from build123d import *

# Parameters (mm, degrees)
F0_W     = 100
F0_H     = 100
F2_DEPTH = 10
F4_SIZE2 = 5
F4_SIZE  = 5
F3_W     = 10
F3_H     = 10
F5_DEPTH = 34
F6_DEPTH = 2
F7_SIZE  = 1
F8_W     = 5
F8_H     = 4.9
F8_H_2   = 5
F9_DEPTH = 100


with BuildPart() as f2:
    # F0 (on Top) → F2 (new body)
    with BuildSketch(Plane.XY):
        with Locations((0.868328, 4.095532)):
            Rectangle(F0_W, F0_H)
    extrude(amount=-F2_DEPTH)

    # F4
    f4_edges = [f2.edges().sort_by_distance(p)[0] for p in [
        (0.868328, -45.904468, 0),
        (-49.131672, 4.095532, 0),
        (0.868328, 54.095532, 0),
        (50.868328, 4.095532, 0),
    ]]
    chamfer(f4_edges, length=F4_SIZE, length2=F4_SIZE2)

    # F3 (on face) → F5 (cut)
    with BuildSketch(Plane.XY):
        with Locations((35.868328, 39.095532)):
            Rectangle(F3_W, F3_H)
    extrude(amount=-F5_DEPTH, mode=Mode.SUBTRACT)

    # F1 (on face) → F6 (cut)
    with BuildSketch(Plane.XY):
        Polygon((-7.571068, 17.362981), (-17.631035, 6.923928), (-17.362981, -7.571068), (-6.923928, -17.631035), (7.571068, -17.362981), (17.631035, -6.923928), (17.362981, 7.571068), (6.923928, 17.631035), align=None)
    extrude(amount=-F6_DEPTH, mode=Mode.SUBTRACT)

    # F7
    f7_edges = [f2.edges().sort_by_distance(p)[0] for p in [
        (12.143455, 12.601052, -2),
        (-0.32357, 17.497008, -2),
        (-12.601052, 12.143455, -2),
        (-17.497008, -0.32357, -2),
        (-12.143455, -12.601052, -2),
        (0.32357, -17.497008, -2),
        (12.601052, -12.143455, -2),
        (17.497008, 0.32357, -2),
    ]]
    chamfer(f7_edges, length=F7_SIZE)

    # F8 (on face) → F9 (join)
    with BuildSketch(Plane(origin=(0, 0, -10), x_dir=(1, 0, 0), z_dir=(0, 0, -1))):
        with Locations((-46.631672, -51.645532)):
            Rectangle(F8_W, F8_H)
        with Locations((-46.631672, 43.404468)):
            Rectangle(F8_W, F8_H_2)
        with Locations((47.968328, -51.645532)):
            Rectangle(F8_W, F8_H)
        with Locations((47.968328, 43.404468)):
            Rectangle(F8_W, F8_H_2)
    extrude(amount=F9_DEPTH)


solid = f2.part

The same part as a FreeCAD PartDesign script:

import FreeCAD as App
import Part
import Sketcher

V = App.Vector


def edges_at(feature, points):
    """Names of the edges that pass closest to the given points."""
    edges = feature.Shape.Edges
    near = lambda p: min(range(len(edges)), key=lambda i: edges[i].distToShape(Part.Vertex(*p))[0])
    return sorted({f"Edge{near(p) + 1}" for p in points})

doc = App.newDocument("Part")
body = doc.addObject("PartDesign::Body", "Body")

# Sketch on XY plane
sketch1 = body.newObject("Sketcher::SketchObject", "Sketch")
sketch1.AttachmentSupport = (doc.getObject("XY_Plane"), [""])
sketch1.MapMode = "FlatFace"
sketch1.addGeometry(Part.LineSegment(V(-49, 54, 0), V(-49, -46, 0)), False)
sketch1.addGeometry(Part.LineSegment(V(-49, -46, 0), V(51, -46, 0)), False)
sketch1.addGeometry(Part.LineSegment(V(51, -46, 0), V(51, 54, 0)), False)
sketch1.addGeometry(Part.LineSegment(V(51, 54, 0), V(-49, 54, 0)), False)
sketch1.addConstraint(Sketcher.Constraint("Coincident", 0, 2, 1, 1))
sketch1.addConstraint(Sketcher.Constraint("Coincident", 1, 2, 2, 1))
sketch1.addConstraint(Sketcher.Constraint("Coincident", 2, 2, 3, 1))
sketch1.addConstraint(Sketcher.Constraint("Coincident", 3, 2, 0, 1))
sketch1.addConstraint(Sketcher.Constraint("Vertical", 0))
sketch1.addConstraint(Sketcher.Constraint("Horizontal", 1))
sketch1.addConstraint(Sketcher.Constraint("Vertical", 2))
sketch1.addConstraint(Sketcher.Constraint("Horizontal", 3))
sketch1.addConstraint(Sketcher.Constraint("Equal", 3, 0))
sketch1.addConstraint(Sketcher.Constraint("DistanceX", 1, 1, 1, 2, 100.0))
sketch1.addConstraint(Sketcher.Constraint("DistanceX", 0, 2, -1, 1, 49.131672))
sketch1.addConstraint(Sketcher.Constraint("DistanceY", 0, 2, -1, 1, 45.904468))
pad1 = body.newObject("PartDesign::Pad", "Pad")
pad1.Profile = sketch1
pad1.Length = 10
pad1.Reversed = True
doc.recompute()

chamfer = body.newObject("PartDesign::Chamfer", "Chamfer")
chamfer.Base = (pad1, edges_at(pad1, [
    (0.868, -45.904, 0),
    (-49.132, 4.096, 0),
    (0.868, 54.096, 0),
    (50.868, 4.096, 0),
]))
chamfer.ChamferType = "Two distances"
chamfer.Size = 5
chamfer.Size2 = 5

# Sketch on XY plane
sketch2 = body.newObject("Sketcher::SketchObject", "Sketch001")
sketch2.AttachmentSupport = (doc.getObject("XY_Plane"), [""])
sketch2.MapMode = "FlatFace"
sketch2.addGeometry(Part.LineSegment(V(31, 44, 0), V(31, 34, 0)), False)
sketch2.addGeometry(Part.LineSegment(V(31, 34, 0), V(41, 34, 0)), False)
sketch2.addGeometry(Part.LineSegment(V(41, 34, 0), V(41, 44, 0)), False)
sketch2.addGeometry(Part.LineSegment(V(41, 44, 0), V(31, 44, 0)), False)
sketch2.addConstraint(Sketcher.Constraint("Coincident", 0, 2, 1, 1))
sketch2.addConstraint(Sketcher.Constraint("Coincident", 1, 2, 2, 1))
sketch2.addConstraint(Sketcher.Constraint("Coincident", 2, 2, 3, 1))
sketch2.addConstraint(Sketcher.Constraint("Coincident", 3, 2, 0, 1))
sketch2.addConstraint(Sketcher.Constraint("Vertical", 0))
sketch2.addConstraint(Sketcher.Constraint("Horizontal", 1))
sketch2.addConstraint(Sketcher.Constraint("Vertical", 2))
sketch2.addConstraint(Sketcher.Constraint("Horizontal", 3))
sketch2.addConstraint(Sketcher.Constraint("Equal", 3, 0))
sketch2.addConstraint(Sketcher.Constraint("DistanceX", 1, 1, 1, 2, 10.0))
sketch2.addConstraint(Sketcher.Constraint("DistanceX", -1, 1, 0, 2, 30.868328))
sketch2.addConstraint(Sketcher.Constraint("DistanceY", -1, 1, 0, 2, 34.095532))
pocket1 = body.newObject("PartDesign::Pocket", "Pocket")
pocket1.Profile = sketch2
pocket1.Length = 34

# Sketch on XY plane
sketch3 = body.newObject("Sketcher::SketchObject", "Sketch002")
sketch3.AttachmentSupport = (doc.getObject("XY_Plane"), [""])
sketch3.MapMode = "FlatFace"
sketch3.addGeometry(Part.LineSegment(V(-8, 17, 0), V(-18, 7, 0)), False)
sketch3.addGeometry(Part.LineSegment(V(-18, 7, 0), V(-17, -8, 0)), False)
sketch3.addGeometry(Part.LineSegment(V(-17, -8, 0), V(-7, -18, 0)), False)
sketch3.addGeometry(Part.LineSegment(V(-7, -18, 0), V(8, -17, 0)), False)
sketch3.addGeometry(Part.LineSegment(V(8, -17, 0), V(18, -7, 0)), False)
sketch3.addGeometry(Part.LineSegment(V(18, -7, 0), V(17, 8, 0)), False)
sketch3.addGeometry(Part.LineSegment(V(17, 8, 0), V(7, 18, 0)), False)
sketch3.addGeometry(Part.LineSegment(V(7, 18, 0), V(-8, 17, 0)), False)
sketch3.addConstraint(Sketcher.Constraint("Coincident", 0, 2, 1, 1))
sketch3.addConstraint(Sketcher.Constraint("Coincident", 1, 2, 2, 1))
sketch3.addConstraint(Sketcher.Constraint("Coincident", 2, 2, 3, 1))
sketch3.addConstraint(Sketcher.Constraint("Coincident", 3, 2, 4, 1))
sketch3.addConstraint(Sketcher.Constraint("Coincident", 4, 2, 5, 1))
sketch3.addConstraint(Sketcher.Constraint("Coincident", 5, 2, 6, 1))
sketch3.addConstraint(Sketcher.Constraint("Coincident", 6, 2, 7, 1))
sketch3.addConstraint(Sketcher.Constraint("Coincident", 7, 2, 0, 1))
sketch3.addConstraint(Sketcher.Constraint("Symmetric", 0, 2, 4, 2, -1, 1))
sketch3.addConstraint(Sketcher.Constraint("Symmetric", 1, 2, 5, 2, -1, 1))
sketch3.addConstraint(Sketcher.Constraint("Symmetric", 2, 2, 6, 2, -1, 1))
sketch3.addConstraint(Sketcher.Constraint("Symmetric", 3, 2, 7, 2, -1, 1))
sketch3.addConstraint(Sketcher.Constraint("Perpendicular", 0, 2))
sketch3.addConstraint(Sketcher.Constraint("Perpendicular", 1, 3))
sketch3.addConstraint(Sketcher.Constraint("Equal", 0, 1))
sketch3.addConstraint(Sketcher.Constraint("Equal", 1, 2))
sketch3.addConstraint(Sketcher.Constraint("Equal", 2, 3))
sketch3.addConstraint(Sketcher.Constraint("DistanceX", 1, 2, -1, 1, 17.362981))
sketch3.addConstraint(Sketcher.Constraint("DistanceY", 1, 2, -1, 1, 7.571068))
sketch3.addConstraint(Sketcher.Constraint("DistanceY", 3, 2, 0, 2, 24.286909))
pocket2 = body.newObject("PartDesign::Pocket", "Pocket001")
pocket2.Profile = sketch3
pocket2.Length = 2
doc.recompute()

chamfer2 = body.newObject("PartDesign::Chamfer", "Chamfer001")
chamfer2.Base = (pocket2, edges_at(pocket2, [
    (12.143, 12.601, -2),
    (-0.324, 17.497, -2),
    (-12.601, 12.143, -2),
    (-17.497, -0.324, -2),
    (-12.143, -12.601, -2),
    (0.324, -17.497, -2),
    (12.601, -12.143, -2),
    (17.497, 0.324, -2),
]))
chamfer2.Size = 1

# Sketch on XY plane
sketch4 = body.newObject("Sketcher::SketchObject", "Sketch003")
sketch4.AttachmentSupport = (doc.getObject("XY_Plane"), [""])
sketch4.MapMode = "FlatFace"
sketch4.AttachmentOffset = App.Placement(V(0, 0, -10), App.Rotation())
sketch4.addGeometry(Part.LineSegment(V(-49.1, 49.2, 0), V(-49.1, 54.1, 0)), False)
sketch4.addGeometry(Part.LineSegment(V(-49.1, 54.1, 0), V(-44.1, 54.1, 0)), False)
sketch4.addGeometry(Part.LineSegment(V(-44.1, 54.1, 0), V(-44.1, 49.2, 0)), False)
sketch4.addGeometry(Part.LineSegment(V(-44.1, 49.2, 0), V(-49.1, 49.2, 0)), False)
sketch4.addGeometry(Part.LineSegment(V(-49.1, -45.9, 0), V(-49.1, -40.9, 0)), False)
sketch4.addGeometry(Part.LineSegment(V(-49.1, -40.9, 0), V(-44.1, -40.9, 0)), False)
sketch4.addGeometry(Part.LineSegment(V(-44.1, -40.9, 0), V(-44.1, -45.9, 0)), False)
sketch4.addGeometry(Part.LineSegment(V(-44.1, -45.9, 0), V(-49.1, -45.9, 0)), False)
sketch4.addGeometry(Part.LineSegment(V(45.5, 49.2, 0), V(45.5, 54.1, 0)), False)
sketch4.addGeometry(Part.LineSegment(V(45.5, 54.1, 0), V(50.5, 54.1, 0)), False)
sketch4.addGeometry(Part.LineSegment(V(50.5, 54.1, 0), V(50.5, 49.2, 0)), False)
sketch4.addGeometry(Part.LineSegment(V(50.5, 49.2, 0), V(45.5, 49.2, 0)), False)
sketch4.addGeometry(Part.LineSegment(V(45.5, -45.9, 0), V(45.5, -40.9, 0)), False)
sketch4.addGeometry(Part.LineSegment(V(45.5, -40.9, 0), V(50.5, -40.9, 0)), False)
sketch4.addGeometry(Part.LineSegment(V(50.5, -40.9, 0), V(50.5, -45.9, 0)), False)
sketch4.addGeometry(Part.LineSegment(V(50.5, -45.9, 0), V(45.5, -45.9, 0)), False)
sketch4.addConstraint(Sketcher.Constraint("Coincident", 0, 2, 1, 1))
sketch4.addConstraint(Sketcher.Constraint("Coincident", 1, 2, 2, 1))
sketch4.addConstraint(Sketcher.Constraint("Coincident", 2, 2, 3, 1))
sketch4.addConstraint(Sketcher.Constraint("Coincident", 3, 2, 0, 1))
sketch4.addConstraint(Sketcher.Constraint("Coincident", 4, 2, 5, 1))
sketch4.addConstraint(Sketcher.Constraint("Coincident", 5, 2, 6, 1))
sketch4.addConstraint(Sketcher.Constraint("Coincident", 6, 2, 7, 1))
sketch4.addConstraint(Sketcher.Constraint("Coincident", 7, 2, 4, 1))
sketch4.addConstraint(Sketcher.Constraint("Coincident", 8, 2, 9, 1))
sketch4.addConstraint(Sketcher.Constraint("Coincident", 9, 2, 10, 1))
sketch4.addConstraint(Sketcher.Constraint("Coincident", 10, 2, 11, 1))
sketch4.addConstraint(Sketcher.Constraint("Coincident", 11, 2, 8, 1))
sketch4.addConstraint(Sketcher.Constraint("Coincident", 12, 2, 13, 1))
sketch4.addConstraint(Sketcher.Constraint("Coincident", 13, 2, 14, 1))
sketch4.addConstraint(Sketcher.Constraint("Coincident", 14, 2, 15, 1))
sketch4.addConstraint(Sketcher.Constraint("Coincident", 15, 2, 12, 1))
sketch4.addConstraint(Sketcher.Constraint("Vertical", 0))
sketch4.addConstraint(Sketcher.Constraint("Horizontal", 1))
sketch4.addConstraint(Sketcher.Constraint("Vertical", 2))
sketch4.addConstraint(Sketcher.Constraint("Horizontal", 3))
sketch4.addConstraint(Sketcher.Constraint("Vertical", 4))
sketch4.addConstraint(Sketcher.Constraint("Horizontal", 5))
sketch4.addConstraint(Sketcher.Constraint("Vertical", 6))
sketch4.addConstraint(Sketcher.Constraint("Horizontal", 7))
sketch4.addConstraint(Sketcher.Constraint("Vertical", 8))
sketch4.addConstraint(Sketcher.Constraint("Horizontal", 9))
sketch4.addConstraint(Sketcher.Constraint("Vertical", 10))
sketch4.addConstraint(Sketcher.Constraint("Horizontal", 11))
sketch4.addConstraint(Sketcher.Constraint("Vertical", 12))
sketch4.addConstraint(Sketcher.Constraint("Horizontal", 13))
sketch4.addConstraint(Sketcher.Constraint("Vertical", 14))
sketch4.addConstraint(Sketcher.Constraint("Horizontal", 15))
sketch4.addConstraint(Sketcher.Constraint("Horizontal", 1, 2, 8, 2))
sketch4.addConstraint(Sketcher.Constraint("Horizontal", 3, 2, 10, 2))
sketch4.addConstraint(Sketcher.Constraint("Horizontal", 5, 2, 12, 2))
sketch4.addConstraint(Sketcher.Constraint("Horizontal", 7, 2, 14, 2))
sketch4.addConstraint(Sketcher.Constraint("Vertical", 3, 2, 4, 2))
sketch4.addConstraint(Sketcher.Constraint("Vertical", 2, 2, 5, 2))
sketch4.addConstraint(Sketcher.Constraint("Vertical", 11, 2, 12, 2))
sketch4.addConstraint(Sketcher.Constraint("Vertical", 10, 2, 13, 2))
sketch4.addConstraint(Sketcher.Constraint("Equal", 7, 9))
sketch4.addConstraint(Sketcher.Constraint("Equal", 15, 4))
sketch4.addConstraint(Sketcher.Constraint("DistanceX", 1, 1, 1, 2, 5.0))
sketch4.addConstraint(Sketcher.Constraint("DistanceY", 0, 1, 0, 2, 4.9))
sketch4.addConstraint(Sketcher.Constraint("DistanceY", 4, 2, 0, 2, 95.0))
sketch4.addConstraint(Sketcher.Constraint("DistanceX", 1, 2, 8, 2, 89.6))
sketch4.addConstraint(Sketcher.Constraint("DistanceX", 0, 2, -1, 1, 49.131672))
sketch4.addConstraint(Sketcher.Constraint("DistanceY", -1, 1, 0, 2, 54.095532))
pad2 = body.newObject("PartDesign::Pad", "Pad001")
pad2.Profile = sketch4
pad2.Length = 100
pad2.Reversed = True

doc.recompute()
